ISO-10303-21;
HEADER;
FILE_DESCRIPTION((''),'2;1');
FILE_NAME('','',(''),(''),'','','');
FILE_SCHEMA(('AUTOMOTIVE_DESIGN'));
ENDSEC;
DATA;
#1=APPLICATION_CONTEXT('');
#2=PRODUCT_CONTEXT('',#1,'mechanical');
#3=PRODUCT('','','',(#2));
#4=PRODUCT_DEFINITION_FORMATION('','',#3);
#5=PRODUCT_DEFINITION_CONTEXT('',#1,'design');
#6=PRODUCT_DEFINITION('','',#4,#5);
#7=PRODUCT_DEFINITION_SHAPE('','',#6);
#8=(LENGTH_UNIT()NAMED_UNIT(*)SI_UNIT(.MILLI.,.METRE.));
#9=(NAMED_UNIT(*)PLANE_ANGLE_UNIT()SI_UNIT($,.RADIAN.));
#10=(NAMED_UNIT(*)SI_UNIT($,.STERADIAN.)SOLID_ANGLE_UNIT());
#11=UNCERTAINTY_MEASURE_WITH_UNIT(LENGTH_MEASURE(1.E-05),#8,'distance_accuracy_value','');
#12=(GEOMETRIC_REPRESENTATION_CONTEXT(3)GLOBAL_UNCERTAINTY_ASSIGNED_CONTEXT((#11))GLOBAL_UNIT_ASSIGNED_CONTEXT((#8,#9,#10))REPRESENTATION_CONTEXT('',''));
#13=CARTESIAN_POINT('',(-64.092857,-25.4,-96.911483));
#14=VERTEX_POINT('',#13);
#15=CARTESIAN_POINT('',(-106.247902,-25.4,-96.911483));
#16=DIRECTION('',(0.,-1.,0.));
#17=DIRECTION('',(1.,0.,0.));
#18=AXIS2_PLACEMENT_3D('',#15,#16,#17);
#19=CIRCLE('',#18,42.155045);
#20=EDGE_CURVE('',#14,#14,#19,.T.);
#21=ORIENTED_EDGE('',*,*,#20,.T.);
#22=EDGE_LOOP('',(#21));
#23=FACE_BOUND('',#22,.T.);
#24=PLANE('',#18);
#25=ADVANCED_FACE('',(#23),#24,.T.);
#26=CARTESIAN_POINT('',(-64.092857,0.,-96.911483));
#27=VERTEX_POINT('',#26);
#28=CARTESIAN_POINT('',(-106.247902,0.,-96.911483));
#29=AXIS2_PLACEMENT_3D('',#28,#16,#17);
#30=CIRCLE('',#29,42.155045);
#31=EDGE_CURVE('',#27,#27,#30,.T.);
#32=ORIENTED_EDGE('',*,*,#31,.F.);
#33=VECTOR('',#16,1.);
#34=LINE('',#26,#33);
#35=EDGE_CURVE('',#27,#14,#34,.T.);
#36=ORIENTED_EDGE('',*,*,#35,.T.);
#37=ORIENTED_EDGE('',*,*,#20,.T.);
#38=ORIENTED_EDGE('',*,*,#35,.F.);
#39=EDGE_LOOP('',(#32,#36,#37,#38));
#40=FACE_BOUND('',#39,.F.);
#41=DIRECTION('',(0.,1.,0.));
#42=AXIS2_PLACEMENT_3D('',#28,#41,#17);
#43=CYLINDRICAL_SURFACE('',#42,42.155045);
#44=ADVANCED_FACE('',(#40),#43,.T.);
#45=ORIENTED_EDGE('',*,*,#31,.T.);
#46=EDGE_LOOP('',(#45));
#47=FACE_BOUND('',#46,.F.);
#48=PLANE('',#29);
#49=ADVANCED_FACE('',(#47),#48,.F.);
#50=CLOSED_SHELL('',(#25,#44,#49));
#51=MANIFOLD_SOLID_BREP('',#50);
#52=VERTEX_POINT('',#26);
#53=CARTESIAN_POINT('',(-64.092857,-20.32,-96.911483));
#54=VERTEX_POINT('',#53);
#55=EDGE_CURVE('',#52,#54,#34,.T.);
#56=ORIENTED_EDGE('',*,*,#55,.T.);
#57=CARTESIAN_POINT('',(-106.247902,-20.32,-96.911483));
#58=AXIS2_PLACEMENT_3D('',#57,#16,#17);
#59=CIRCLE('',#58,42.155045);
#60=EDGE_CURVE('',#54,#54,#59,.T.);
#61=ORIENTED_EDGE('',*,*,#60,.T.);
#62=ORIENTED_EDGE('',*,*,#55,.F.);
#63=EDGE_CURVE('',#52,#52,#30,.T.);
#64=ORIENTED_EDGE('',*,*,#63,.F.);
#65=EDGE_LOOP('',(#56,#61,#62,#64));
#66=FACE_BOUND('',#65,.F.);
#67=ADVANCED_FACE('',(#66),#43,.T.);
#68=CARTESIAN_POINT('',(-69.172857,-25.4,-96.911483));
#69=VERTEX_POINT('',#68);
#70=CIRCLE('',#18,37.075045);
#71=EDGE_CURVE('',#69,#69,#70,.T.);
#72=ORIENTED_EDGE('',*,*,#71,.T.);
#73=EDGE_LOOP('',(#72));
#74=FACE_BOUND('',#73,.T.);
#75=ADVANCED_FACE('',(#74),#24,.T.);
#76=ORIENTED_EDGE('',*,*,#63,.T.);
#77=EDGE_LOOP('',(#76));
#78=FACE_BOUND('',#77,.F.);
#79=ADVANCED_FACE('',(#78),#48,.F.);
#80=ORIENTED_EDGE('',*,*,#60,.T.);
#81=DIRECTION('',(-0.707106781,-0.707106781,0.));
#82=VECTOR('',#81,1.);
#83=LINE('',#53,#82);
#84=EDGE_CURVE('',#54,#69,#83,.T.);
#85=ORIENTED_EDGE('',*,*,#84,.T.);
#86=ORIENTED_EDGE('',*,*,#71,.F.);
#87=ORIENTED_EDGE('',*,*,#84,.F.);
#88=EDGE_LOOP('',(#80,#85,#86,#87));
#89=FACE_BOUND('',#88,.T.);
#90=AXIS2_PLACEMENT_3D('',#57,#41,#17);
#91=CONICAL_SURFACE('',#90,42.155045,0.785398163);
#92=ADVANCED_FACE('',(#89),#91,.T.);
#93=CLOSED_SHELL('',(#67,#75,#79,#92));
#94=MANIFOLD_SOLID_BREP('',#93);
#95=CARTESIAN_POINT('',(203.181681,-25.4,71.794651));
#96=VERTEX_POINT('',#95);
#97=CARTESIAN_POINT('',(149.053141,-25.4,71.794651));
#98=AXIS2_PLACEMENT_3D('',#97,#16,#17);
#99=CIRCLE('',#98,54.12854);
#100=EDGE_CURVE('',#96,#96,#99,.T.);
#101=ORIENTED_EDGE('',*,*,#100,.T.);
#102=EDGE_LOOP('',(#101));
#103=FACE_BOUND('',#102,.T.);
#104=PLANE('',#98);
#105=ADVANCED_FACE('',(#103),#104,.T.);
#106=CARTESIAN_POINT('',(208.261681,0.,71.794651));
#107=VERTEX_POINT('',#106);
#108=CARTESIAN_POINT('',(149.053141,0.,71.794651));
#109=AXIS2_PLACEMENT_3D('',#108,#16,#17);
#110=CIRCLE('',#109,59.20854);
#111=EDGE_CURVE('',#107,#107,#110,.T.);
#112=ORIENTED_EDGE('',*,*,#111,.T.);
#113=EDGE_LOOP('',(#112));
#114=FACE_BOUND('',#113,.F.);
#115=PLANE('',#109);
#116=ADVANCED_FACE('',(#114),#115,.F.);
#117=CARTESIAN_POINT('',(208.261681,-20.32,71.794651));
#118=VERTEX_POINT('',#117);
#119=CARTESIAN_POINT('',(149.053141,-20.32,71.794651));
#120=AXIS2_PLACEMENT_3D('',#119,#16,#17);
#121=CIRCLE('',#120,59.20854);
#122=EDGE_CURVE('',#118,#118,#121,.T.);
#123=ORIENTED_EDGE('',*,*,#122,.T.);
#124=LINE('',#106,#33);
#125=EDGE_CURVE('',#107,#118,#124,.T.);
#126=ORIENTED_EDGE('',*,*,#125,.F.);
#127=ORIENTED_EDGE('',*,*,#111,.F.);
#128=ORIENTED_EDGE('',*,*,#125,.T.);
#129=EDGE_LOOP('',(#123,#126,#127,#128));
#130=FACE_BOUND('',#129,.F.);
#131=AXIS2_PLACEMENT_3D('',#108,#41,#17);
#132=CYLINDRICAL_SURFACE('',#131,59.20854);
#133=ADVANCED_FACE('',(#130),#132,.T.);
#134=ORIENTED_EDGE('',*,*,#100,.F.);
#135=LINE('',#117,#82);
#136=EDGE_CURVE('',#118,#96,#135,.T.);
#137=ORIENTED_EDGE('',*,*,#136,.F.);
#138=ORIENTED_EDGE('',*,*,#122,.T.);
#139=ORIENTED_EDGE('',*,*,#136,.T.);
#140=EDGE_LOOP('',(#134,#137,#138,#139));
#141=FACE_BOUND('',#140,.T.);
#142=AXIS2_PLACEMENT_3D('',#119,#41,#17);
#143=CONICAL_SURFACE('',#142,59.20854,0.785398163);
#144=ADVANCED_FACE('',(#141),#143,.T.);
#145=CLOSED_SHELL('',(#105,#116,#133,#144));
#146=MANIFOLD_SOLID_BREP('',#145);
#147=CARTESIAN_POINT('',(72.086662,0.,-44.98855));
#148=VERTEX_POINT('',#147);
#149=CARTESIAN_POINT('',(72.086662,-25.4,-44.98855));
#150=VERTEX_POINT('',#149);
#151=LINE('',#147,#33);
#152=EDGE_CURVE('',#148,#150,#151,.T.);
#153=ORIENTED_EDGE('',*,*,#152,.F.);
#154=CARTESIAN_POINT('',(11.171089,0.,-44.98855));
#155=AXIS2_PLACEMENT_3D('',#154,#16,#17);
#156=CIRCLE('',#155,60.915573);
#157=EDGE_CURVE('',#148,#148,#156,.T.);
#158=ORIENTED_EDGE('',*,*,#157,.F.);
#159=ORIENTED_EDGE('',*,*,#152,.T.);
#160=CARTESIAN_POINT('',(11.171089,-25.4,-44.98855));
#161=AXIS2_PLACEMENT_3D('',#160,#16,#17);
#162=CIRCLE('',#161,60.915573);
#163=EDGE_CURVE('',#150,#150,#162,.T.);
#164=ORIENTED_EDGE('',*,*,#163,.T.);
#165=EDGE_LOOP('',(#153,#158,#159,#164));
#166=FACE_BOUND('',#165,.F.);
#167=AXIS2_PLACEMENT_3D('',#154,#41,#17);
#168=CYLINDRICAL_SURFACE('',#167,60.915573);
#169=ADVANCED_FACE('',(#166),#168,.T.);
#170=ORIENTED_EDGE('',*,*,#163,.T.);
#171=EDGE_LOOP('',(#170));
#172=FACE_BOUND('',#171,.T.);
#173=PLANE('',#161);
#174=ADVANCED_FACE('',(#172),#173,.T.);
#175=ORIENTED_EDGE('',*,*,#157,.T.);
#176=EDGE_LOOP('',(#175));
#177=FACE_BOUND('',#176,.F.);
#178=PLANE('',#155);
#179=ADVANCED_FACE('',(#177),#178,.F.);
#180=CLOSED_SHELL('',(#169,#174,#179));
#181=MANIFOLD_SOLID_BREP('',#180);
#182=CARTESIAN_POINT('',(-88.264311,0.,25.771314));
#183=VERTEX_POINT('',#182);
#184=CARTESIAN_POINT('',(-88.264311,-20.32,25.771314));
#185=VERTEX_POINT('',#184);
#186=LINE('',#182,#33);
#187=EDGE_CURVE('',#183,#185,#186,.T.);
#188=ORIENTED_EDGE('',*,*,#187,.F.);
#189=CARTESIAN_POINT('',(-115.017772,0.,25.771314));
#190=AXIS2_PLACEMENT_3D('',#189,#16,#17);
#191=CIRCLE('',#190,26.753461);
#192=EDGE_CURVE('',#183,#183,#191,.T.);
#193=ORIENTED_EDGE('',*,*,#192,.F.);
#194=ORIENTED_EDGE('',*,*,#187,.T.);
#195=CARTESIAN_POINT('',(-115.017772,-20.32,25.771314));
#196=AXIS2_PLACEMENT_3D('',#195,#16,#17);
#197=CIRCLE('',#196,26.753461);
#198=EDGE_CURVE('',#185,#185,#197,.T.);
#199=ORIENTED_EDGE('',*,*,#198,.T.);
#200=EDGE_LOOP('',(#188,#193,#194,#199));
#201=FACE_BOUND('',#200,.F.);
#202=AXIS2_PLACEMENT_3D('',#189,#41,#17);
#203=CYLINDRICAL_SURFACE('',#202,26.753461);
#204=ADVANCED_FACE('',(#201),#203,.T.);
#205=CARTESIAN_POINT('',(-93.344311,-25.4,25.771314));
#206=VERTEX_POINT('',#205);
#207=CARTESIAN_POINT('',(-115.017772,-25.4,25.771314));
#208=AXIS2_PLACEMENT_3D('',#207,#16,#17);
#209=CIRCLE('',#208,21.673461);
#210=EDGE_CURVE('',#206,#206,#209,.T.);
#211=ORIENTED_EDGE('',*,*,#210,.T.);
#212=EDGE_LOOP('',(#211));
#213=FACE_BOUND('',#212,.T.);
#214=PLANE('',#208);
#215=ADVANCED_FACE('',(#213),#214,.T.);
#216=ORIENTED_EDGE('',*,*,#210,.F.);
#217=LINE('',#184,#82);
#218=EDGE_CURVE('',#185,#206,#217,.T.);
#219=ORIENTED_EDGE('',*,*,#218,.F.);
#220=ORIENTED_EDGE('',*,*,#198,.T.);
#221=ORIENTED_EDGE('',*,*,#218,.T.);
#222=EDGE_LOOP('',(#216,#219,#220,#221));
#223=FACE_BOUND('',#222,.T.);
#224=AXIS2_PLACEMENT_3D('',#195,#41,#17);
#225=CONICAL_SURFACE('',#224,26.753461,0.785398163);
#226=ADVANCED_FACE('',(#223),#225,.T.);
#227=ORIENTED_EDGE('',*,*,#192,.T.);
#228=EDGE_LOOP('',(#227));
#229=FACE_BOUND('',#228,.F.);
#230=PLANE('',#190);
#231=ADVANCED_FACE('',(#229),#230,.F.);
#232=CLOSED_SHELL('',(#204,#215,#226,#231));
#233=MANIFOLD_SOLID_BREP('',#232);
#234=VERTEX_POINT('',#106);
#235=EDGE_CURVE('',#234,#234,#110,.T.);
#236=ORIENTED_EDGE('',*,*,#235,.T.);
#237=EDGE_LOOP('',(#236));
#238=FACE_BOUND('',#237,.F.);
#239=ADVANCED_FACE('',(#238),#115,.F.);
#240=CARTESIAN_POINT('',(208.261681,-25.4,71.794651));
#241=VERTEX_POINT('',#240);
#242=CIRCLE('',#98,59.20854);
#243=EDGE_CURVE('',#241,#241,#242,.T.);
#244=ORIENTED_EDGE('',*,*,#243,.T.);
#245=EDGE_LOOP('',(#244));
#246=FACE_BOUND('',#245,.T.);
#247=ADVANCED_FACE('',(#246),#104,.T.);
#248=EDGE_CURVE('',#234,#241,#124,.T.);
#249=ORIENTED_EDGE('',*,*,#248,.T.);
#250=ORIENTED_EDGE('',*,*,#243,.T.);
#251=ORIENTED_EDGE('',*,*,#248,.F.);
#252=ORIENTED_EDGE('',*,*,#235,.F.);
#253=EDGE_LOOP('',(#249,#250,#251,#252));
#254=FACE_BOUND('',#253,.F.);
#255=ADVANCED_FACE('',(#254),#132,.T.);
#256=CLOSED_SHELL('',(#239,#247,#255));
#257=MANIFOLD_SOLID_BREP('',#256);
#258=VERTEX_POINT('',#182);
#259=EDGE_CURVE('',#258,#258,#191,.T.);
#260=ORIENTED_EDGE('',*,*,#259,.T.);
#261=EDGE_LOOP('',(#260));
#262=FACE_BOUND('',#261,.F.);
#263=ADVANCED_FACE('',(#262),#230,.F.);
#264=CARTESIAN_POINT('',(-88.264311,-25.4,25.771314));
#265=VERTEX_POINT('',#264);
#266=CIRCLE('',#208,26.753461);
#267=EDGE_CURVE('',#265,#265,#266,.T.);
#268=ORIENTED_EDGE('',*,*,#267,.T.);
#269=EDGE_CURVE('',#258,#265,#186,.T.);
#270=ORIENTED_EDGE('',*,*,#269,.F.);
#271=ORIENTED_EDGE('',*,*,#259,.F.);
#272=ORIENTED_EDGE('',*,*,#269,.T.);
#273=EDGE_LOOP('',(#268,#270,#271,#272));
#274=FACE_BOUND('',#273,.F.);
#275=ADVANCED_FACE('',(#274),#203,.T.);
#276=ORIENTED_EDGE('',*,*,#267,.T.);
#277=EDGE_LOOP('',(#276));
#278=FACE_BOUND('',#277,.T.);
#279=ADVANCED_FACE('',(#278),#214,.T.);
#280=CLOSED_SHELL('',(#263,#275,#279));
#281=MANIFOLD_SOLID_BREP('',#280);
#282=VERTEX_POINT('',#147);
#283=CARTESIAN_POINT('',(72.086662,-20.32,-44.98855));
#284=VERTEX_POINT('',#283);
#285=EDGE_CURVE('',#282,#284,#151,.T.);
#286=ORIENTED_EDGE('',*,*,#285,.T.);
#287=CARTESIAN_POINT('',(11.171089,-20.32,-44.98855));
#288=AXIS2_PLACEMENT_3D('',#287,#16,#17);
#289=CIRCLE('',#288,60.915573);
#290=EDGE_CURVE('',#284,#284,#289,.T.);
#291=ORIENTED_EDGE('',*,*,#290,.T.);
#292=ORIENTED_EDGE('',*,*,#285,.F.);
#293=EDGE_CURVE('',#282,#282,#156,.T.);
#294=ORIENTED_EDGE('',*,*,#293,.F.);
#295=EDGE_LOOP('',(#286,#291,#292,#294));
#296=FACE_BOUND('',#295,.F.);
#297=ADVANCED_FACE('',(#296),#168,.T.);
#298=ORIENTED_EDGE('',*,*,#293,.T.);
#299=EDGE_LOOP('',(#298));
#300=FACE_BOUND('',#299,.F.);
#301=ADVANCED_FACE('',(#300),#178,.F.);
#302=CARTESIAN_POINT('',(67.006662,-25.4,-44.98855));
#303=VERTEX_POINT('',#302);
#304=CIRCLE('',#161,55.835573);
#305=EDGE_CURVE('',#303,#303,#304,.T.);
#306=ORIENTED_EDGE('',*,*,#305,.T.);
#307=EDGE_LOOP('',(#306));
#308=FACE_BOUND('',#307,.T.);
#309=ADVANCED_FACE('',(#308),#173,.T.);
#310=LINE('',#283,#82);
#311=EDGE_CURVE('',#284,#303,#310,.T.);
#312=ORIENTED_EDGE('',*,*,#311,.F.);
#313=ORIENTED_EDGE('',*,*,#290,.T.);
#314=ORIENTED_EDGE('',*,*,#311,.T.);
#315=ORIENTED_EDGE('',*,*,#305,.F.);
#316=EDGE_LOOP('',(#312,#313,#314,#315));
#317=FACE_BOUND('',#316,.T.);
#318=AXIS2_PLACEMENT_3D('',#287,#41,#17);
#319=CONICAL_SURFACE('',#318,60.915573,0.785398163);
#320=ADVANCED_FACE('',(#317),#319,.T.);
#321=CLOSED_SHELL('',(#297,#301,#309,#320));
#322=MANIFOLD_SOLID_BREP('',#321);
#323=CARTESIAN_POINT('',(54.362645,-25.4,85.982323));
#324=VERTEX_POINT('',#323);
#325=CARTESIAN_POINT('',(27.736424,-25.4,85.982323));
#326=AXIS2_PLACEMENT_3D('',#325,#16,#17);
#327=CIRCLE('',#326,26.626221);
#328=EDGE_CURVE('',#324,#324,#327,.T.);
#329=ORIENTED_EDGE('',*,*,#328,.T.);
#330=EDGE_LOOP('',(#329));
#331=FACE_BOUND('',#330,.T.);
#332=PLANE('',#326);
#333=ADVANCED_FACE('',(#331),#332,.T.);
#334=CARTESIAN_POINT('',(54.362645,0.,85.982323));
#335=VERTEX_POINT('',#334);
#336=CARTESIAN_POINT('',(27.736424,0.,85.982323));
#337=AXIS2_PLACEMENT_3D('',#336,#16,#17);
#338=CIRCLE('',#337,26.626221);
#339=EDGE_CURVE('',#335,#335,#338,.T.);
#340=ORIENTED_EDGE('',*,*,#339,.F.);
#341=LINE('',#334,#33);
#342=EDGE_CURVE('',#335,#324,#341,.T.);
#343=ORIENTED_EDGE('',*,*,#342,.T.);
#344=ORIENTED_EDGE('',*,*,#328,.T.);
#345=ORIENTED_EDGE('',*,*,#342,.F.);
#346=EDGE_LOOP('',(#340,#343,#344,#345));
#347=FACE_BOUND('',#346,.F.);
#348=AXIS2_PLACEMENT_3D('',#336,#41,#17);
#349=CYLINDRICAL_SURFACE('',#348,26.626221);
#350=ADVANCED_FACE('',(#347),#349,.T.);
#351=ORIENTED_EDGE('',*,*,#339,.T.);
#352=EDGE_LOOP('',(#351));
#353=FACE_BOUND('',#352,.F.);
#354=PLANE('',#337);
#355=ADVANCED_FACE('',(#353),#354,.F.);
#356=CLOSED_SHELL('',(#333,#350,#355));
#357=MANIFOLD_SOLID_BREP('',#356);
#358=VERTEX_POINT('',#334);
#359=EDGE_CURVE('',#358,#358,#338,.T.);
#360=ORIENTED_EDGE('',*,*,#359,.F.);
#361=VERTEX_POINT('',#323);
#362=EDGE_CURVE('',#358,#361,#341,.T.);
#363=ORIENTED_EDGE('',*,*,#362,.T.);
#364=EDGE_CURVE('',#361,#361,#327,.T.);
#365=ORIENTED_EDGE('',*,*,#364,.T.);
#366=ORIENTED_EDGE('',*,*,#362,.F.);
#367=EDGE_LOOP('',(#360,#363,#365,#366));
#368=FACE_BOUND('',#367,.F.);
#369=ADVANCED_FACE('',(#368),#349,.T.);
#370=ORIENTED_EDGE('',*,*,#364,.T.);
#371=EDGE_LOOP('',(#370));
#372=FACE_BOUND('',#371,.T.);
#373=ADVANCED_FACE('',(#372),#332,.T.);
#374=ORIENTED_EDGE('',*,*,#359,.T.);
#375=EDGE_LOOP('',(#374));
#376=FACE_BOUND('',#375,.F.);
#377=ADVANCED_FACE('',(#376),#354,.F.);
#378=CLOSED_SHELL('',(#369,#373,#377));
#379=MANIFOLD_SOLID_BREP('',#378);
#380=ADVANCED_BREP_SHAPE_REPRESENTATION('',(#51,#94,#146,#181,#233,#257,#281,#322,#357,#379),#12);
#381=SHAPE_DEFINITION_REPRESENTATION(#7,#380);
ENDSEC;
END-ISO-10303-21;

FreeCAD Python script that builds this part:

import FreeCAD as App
import Part
import Sketcher
from FreeCAD import Vector
Q = App.Units.Quantity


def edges_at(feature, points):
    """Names of the edges that pass closest to the given points."""
    edges = feature.Shape.Edges
    near = lambda p: min(range(len(edges)), key=lambda i: edges[i].distToShape(Part.Vertex(*p))[0])
    return sorted({f"Edge{near(p) + 1}" for p in points})

doc = App.newDocument("Part")
body = doc.addObject("PartDesign::Body", "Body")
body.AllowCompound = True

# Sketch on XZ plane
sketch1 = body.newObject("Sketcher::SketchObject", "Sketch")
sketch1.AttachmentSupport = (doc.getObject("XZ_Plane"), [""])
sketch1.MapMode = "FlatFace"
sketch1.addGeometry(Part.Circle(Vector(-115, 26, 0), Vector(0, 0, 1), 27), False)
sketch1.addGeometry(Part.Circle(Vector(-106, -97, 0), Vector(0, 0, 1), 42), False)
sketch1.addGeometry(Part.Circle(Vector(11, -45, 0), Vector(0, 0, 1), 61), False)
sketch1.addGeometry(Part.Circle(Vector(149, 72, 0), Vector(0, 0, 1), 59), False)
sketch1.addGeometry(Part.Circle(Vector(28, 86, 0), Vector(0, 0, 1), 27), False)
sketch1.addConstraint(Sketcher.Constraint("Diameter", 1, Q("84.31009 mm")))
sketch1.addConstraint(Sketcher.Constraint("Diameter", 3, Q("118.41708 mm")))
sketch1.addConstraint(Sketcher.Constraint("Diameter", 0, Q("53.506922 mm")))
sketch1.addConstraint(Sketcher.Constraint("Diameter", 2, Q("121.831146 mm")))
sketch1.addConstraint(Sketcher.Constraint("Diameter", 4, Q("53.252442 mm")))
sketch1.addConstraint(Sketcher.Constraint("DistanceX", 1, 3, -1, 1, Q("106.247902 mm")))
sketch1.addConstraint(Sketcher.Constraint("DistanceY", 2, 3, 3, 3, Q("116.783201 mm")))
sketch1.addConstraint(Sketcher.Constraint("DistanceX", 0, 3, -1, 1, Q("115.017772 mm")))
sketch1.addConstraint(Sketcher.Constraint("DistanceX", -1, 1, 2, 3, Q("11.171089 mm")))
sketch1.addConstraint(Sketcher.Constraint("DistanceY", 2, 3, -1, 1, Q("44.98855 mm")))
sketch1.addConstraint(Sketcher.Constraint("DistanceX", -1, 1, 3, 3, Q("149.053141 mm")))
sketch1.addConstraint(Sketcher.Constraint("DistanceY", 3, 3, 4, 3, Q("14.187672 mm")))
sketch1.addConstraint(Sketcher.Constraint("DistanceY", 0, 3, 4, 3, Q("60.211009 mm")))
sketch1.addConstraint(Sketcher.Constraint("DistanceY", 1, 3, -1, 1, Q("96.911483 mm")))
sketch1.addConstraint(Sketcher.Constraint("DistanceX", -1, 1, 4, 3, Q("27.736424 mm")))
pad1 = body.newObject("PartDesign::Pad", "Pad")
pad1.Profile = sketch1
pad1.Length = Q("1 in")
doc.recompute()

chamfer = body.newObject("PartDesign::Chamfer", "Chamfer")
chamfer.Base = (pad1, edges_at(pad1, [
    (-141.771, -25.4, 25.771),
    (-148.403, -25.4, -96.911),
    (-49.744, -25.4, -44.989),
    (89.845, -25.4, 71.795),
]))
chamfer.Size = Q("0.2 in")
body2 = doc.addObject("PartDesign::Body", "Body001")
body2.AllowCompound = True

# Sketch on XZ plane
sketch2 = body2.newObject("Sketcher::SketchObject", "Sketch001")
sketch2.AttachmentSupport = (doc.getObject("XZ_Plane001"), [""])
sketch2.MapMode = "FlatFace"
sketch2.addGeometry(Part.Circle(Vector(-115, 26, 0), Vector(0, 0, 1), 27), False)
sketch2.addGeometry(Part.Circle(Vector(-106, -97, 0), Vector(0, 0, 1), 42), False)
sketch2.addGeometry(Part.Circle(Vector(11, -45, 0), Vector(0, 0, 1), 61), False)
sketch2.addGeometry(Part.Circle(Vector(149, 72, 0), Vector(0, 0, 1), 59), False)
sketch2.addGeometry(Part.Circle(Vector(28, 86, 0), Vector(0, 0, 1), 27), False)
sketch2.addConstraint(Sketcher.Constraint("Diameter", 1, Q("84.31009 mm")))
sketch2.addConstraint(Sketcher.Constraint("Diameter", 3, Q("118.41708 mm")))
sketch2.addConstraint(Sketcher.Constraint("Diameter", 0, Q("53.506922 mm")))
sketch2.addConstraint(Sketcher.Constraint("Diameter", 2, Q("121.831146 mm")))
sketch2.addConstraint(Sketcher.Constraint("Diameter", 4, Q("53.252442 mm")))
sketch2.addConstraint(Sketcher.Constraint("DistanceX", 1, 3, -1, 1, Q("106.247902 mm")))
sketch2.addConstraint(Sketcher.Constraint("DistanceY", 2, 3, 3, 3, Q("116.783201 mm")))
sketch2.addConstraint(Sketcher.Constraint("DistanceX", 0, 3, -1, 1, Q("115.017772 mm")))
sketch2.addConstraint(Sketcher.Constraint("DistanceX", -1, 1, 2, 3, Q("11.171089 mm")))
sketch2.addConstraint(Sketcher.Constraint("DistanceY", 2, 3, -1, 1, Q("44.98855 mm")))
sketch2.addConstraint(Sketcher.Constraint("DistanceX", -1, 1, 3, 3, Q("149.053141 mm")))
sketch2.addConstraint(Sketcher.Constraint("DistanceY", 3, 3, 4, 3, Q("14.187672 mm")))
sketch2.addConstraint(Sketcher.Constraint("DistanceY", 0, 3, 4, 3, Q("60.211009 mm")))
sketch2.addConstraint(Sketcher.Constraint("DistanceY", 1, 3, -1, 1, Q("96.911483 mm")))
sketch2.addConstraint(Sketcher.Constraint("DistanceX", -1, 1, 4, 3, Q("27.736424 mm")))
pad2 = body2.newObject("PartDesign::Pad", "Pad001")
pad2.Profile = sketch2
pad2.Length = Q("1 in")

doc.recompute()
